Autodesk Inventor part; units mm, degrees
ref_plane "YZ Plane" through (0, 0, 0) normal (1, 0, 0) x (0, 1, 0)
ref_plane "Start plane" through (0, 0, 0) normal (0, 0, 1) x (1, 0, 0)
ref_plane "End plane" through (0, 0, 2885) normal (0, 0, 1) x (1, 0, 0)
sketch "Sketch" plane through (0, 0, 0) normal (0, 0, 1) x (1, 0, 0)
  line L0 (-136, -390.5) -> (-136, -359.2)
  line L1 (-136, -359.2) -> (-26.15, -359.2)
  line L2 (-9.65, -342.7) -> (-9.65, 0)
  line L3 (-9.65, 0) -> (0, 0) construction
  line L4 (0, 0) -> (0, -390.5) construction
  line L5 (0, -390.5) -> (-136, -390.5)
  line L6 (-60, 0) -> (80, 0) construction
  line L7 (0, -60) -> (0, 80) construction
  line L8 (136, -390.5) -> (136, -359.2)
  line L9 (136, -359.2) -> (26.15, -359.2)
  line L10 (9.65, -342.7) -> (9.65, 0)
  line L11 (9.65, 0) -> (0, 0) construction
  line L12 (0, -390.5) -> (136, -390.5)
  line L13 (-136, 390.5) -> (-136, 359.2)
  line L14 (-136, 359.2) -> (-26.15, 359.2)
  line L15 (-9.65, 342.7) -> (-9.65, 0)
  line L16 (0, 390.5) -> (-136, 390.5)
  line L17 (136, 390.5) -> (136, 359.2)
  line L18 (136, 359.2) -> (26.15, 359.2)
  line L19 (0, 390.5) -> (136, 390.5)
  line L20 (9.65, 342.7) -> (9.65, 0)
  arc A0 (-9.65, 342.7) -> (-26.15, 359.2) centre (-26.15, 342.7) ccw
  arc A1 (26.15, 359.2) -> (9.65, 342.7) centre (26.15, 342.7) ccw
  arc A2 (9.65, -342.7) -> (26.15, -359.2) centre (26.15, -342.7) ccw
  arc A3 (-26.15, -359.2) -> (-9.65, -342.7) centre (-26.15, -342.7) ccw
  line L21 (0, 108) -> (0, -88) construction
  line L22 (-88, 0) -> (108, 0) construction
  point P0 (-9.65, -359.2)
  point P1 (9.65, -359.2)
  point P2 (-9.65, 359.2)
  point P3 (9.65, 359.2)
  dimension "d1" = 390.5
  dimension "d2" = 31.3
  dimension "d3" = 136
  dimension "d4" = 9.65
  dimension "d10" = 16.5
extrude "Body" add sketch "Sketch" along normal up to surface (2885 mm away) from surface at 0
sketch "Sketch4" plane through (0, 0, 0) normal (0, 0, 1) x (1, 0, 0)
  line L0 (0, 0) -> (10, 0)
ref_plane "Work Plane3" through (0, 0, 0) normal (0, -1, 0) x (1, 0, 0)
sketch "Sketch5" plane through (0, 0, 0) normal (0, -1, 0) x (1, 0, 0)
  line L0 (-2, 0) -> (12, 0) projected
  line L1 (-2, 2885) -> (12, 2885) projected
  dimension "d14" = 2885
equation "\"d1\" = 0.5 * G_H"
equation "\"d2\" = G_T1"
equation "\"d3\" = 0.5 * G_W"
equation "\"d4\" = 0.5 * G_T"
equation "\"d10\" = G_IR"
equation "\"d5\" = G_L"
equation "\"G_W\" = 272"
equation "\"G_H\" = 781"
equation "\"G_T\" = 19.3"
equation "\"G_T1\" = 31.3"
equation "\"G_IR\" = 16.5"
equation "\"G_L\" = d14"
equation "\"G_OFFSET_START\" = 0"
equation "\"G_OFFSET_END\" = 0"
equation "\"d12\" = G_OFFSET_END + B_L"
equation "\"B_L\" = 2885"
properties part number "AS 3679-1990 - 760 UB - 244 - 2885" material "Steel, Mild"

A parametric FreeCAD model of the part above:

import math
import FreeCAD as App
import Part
import Sketcher
from FreeCAD import Vector
Q = App.Units.Quantity

doc = App.newDocument("Part")
body = doc.addObject("PartDesign::Body", "Body")

sketch1 = body.newObject("Sketcher::SketchObject", "Sketch")
sketch1.AttachmentSupport = (doc.getObject("XY_Plane"), [""])
sketch1.MapMode = "FlatFace"
sketch1.addGeometry([
    Part.LineSegment(Vector(-136, -359, 0), Vector(-136, -390, 0)),
    Part.LineSegment(Vector(-136, -390, 0), Vector(136, -390, 0)),
    Part.LineSegment(Vector(136, -390, 0), Vector(136, -359, 0)),
    Part.LineSegment(Vector(136, -359, 0), Vector(26, -359, 0)),
    Part.ArcOfCircle(Part.Circle(Vector(26, -343, 0), Vector(0, 0, 1), 16), math.radians(180), math.radians(270)),
    Part.LineSegment(Vector(10, -343, 0), Vector(10, 343, 0)),
    Part.ArcOfCircle(Part.Circle(Vector(26, 343, 0), Vector(0, 0, 1), 16), math.radians(90), math.radians(180)),
    Part.LineSegment(Vector(26, 359, 0), Vector(136, 359, 0)),
    Part.LineSegment(Vector(136, 359, 0), Vector(136, 390, 0)),
    Part.LineSegment(Vector(136, 390, 0), Vector(-136, 390, 0)),
    Part.LineSegment(Vector(-136, 390, 0), Vector(-136, 359, 0)),
    Part.LineSegment(Vector(-136, 359, 0), Vector(-26, 359, 0)),
    Part.ArcOfCircle(Part.Circle(Vector(-26, 343, 0), Vector(0, 0, 1), 16), math.radians(0), math.radians(90)),
    Part.LineSegment(Vector(-10, 343, 0), Vector(-10, -343, 0)),
    Part.ArcOfCircle(Part.Circle(Vector(-26, -343, 0), Vector(0, 0, 1), 16), math.radians(-90), math.radians(0)),
    Part.LineSegment(Vector(-26, -359, 0), Vector(-136, -359, 0)),
], False)
sketch1.addConstraint([
    Sketcher.Constraint("Coincident", 0, 2, 1, 1),
    Sketcher.Constraint("Coincident", 1, 2, 2, 1),
    Sketcher.Constraint("Coincident", 2, 2, 3, 1),
    Sketcher.Constraint("Tangent", 3, 2, 4, 2),
    Sketcher.Constraint("Tangent", 4, 1, 5, 1),
    Sketcher.Constraint("Tangent", 5, 2, 6, 2),
    Sketcher.Constraint("Tangent", 6, 1, 7, 1),
    Sketcher.Constraint("Coincident", 7, 2, 8, 1),
    Sketcher.Constraint("Coincident", 8, 2, 9, 1),
    Sketcher.Constraint("Coincident", 9, 2, 10, 1),
    Sketcher.Constraint("Coincident", 10, 2, 11, 1),
    Sketcher.Constraint("Tangent", 11, 2, 12, 2),
    Sketcher.Constraint("Tangent", 12, 1, 13, 1),
    Sketcher.Constraint("Tangent", 13, 2, 14, 2),
    Sketcher.Constraint("Tangent", 14, 1, 15, 1),
    Sketcher.Constraint("Coincident", 15, 2, 0, 1),
    Sketcher.Constraint("Vertical", 0),
    Sketcher.Constraint("Horizontal", 1),
    Sketcher.Constraint("Vertical", 2),
    Sketcher.Constraint("Horizontal", 3),
    Sketcher.Constraint("Vertical", 5),
    Sketcher.Constraint("Horizontal", 7),
    Sketcher.Constraint("Vertical", 8),
    Sketcher.Constraint("Horizontal", 9),
    Sketcher.Constraint("Vertical", 10),
    Sketcher.Constraint("Horizontal", 11),
    Sketcher.Constraint("Vertical", 13),
    Sketcher.Constraint("Horizontal", 15),
    Sketcher.Constraint("Equal", 4, 6),
    Sketcher.Constraint("Equal", 6, 12),
    Sketcher.Constraint("Equal", 12, 14),
    Sketcher.Constraint("Symmetric", 4, 3, 12, 3, -1, 1),
    Sketcher.Constraint("Symmetric", 0, 2, 8, 2, -1, 1),
    Sketcher.Constraint("Symmetric", 7, 2, 10, 2, -2),
    Sketcher.Constraint("Symmetric", 2, 2, 15, 2, -2),
    Sketcher.Constraint("Radius", 4, Q("16.5 mm")),
    Sketcher.Constraint("DistanceY", 0, 2, 0, 1, Q("31.3 mm")),
    Sketcher.Constraint("DistanceX", 0, 2, -1, 1, Q("136 mm")),
    Sketcher.Constraint("DistanceY", 0, 2, -1, 1, Q("390.5 mm")),
    Sketcher.Constraint("DistanceX", -1, 1, 4, 1, Q("9.65 mm")),
])
pad1 = body.newObject("PartDesign::Pad", "Pad")
pad1.Profile = sketch1
pad1.Length = 2885

doc.recompute()
